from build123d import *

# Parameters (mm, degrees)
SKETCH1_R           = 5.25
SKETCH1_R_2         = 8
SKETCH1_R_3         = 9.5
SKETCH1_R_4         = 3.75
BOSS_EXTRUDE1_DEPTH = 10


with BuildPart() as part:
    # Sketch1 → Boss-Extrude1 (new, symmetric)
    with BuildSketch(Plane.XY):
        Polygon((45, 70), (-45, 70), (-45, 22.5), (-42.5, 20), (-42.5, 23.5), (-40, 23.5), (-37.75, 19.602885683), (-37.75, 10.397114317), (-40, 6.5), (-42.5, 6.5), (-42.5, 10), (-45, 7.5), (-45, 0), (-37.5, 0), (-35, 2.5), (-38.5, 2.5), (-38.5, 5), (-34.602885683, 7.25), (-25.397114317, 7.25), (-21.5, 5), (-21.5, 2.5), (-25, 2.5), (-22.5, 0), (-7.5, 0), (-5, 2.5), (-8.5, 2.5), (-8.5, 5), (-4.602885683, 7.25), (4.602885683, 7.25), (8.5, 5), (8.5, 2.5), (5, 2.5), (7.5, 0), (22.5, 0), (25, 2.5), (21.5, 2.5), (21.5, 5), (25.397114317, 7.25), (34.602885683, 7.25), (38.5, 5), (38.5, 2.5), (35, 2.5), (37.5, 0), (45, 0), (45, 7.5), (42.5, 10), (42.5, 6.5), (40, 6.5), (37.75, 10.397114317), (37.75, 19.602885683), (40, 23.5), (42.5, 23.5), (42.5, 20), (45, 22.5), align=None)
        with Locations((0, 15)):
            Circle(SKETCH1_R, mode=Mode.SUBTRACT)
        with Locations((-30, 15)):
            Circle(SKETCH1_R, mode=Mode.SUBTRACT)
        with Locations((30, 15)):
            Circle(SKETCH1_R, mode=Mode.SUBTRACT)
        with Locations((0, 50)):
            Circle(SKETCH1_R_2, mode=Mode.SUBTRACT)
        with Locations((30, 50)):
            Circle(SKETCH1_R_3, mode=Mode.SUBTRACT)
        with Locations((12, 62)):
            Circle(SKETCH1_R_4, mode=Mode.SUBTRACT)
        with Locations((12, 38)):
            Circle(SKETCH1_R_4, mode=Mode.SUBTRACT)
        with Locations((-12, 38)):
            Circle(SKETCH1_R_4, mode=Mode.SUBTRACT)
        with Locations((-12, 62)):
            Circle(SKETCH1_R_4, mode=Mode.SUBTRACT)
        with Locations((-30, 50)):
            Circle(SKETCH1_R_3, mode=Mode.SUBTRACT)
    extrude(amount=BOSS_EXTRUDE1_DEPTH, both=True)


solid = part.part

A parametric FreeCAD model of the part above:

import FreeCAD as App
import Part
import Sketcher
Q = App.Units.Quantity

doc = App.newDocument("Part")
body = doc.addObject("PartDesign::Body", "Body")

# Sketch on XY plane
sketch1 = body.newObject("Sketcher::SketchObject", "Sketch")
sketch1.AttachmentSupport = (doc.getObject("XY_Plane"), [""])
sketch1.MapMode = "FlatFace"
sketch1.addGeometry(Part.LineSegment(App.Vector(45, 70, 0), App.Vector(-45, 70, 0)), False)
sketch1.addGeometry(Part.LineSegment(App.Vector(-45, 70, 0), App.Vector(-45, 22.5, 0)), False)
sketch1.addGeometry(Part.LineSegment(App.Vector(-45, 22.5, 0), App.Vector(-42.5, 20, 0)), False)
sketch1.addGeometry(Part.LineSegment(App.Vector(-42.5, 20, 0), App.Vector(-42.5, 23.5, 0)), False)
sketch1.addGeometry(Part.LineSegment(App.Vector(-42.5, 23.5, 0), App.Vector(-40, 23.5, 0)), False)
sketch1.addGeometry(Part.LineSegment(App.Vector(-40, 23.5, 0), App.Vector(-37.8, 19.6, 0)), False)
sketch1.addGeometry(Part.LineSegment(App.Vector(-37.8, 19.6, 0), App.Vector(-37.8, 10.4, 0)), False)
sketch1.addGeometry(Part.LineSegment(App.Vector(-37.8, 10.4, 0), App.Vector(-40, 6.5, 0)), False)
sketch1.addGeometry(Part.LineSegment(App.Vector(-40, 6.5, 0), App.Vector(-42.5, 6.5, 0)), False)
sketch1.addGeometry(Part.LineSegment(App.Vector(-42.5, 6.5, 0), App.Vector(-42.5, 10, 0)), False)
sketch1.addGeometry(Part.LineSegment(App.Vector(-42.5, 10, 0), App.Vector(-45, 7.5, 0)), False)
sketch1.addGeometry(Part.LineSegment(App.Vector(-45, 7.5, 0), App.Vector(-45, 0, 0)), False)
sketch1.addGeometry(Part.LineSegment(App.Vector(-45, 0, 0), App.Vector(-37.5, 0, 0)), False)
sketch1.addGeometry(Part.LineSegment(App.Vector(-37.5, 0, 0), App.Vector(-35, 2.5, 0)), False)
sketch1.addGeometry(Part.LineSegment(App.Vector(-35, 2.5, 0), App.Vector(-38.5, 2.5, 0)), False)
sketch1.addGeometry(Part.LineSegment(App.Vector(-38.5, 2.5, 0), App.Vector(-38.5, 5, 0)), False)
sketch1.addGeometry(Part.LineSegment(App.Vector(-38.5, 5, 0), App.Vector(-34.6, 7.2, 0)), False)
sketch1.addGeometry(Part.LineSegment(App.Vector(-34.6, 7.2, 0), App.Vector(-25.4, 7.2, 0)), False)
sketch1.addGeometry(Part.LineSegment(App.Vector(-25.4, 7.2, 0), App.Vector(-21.5, 5, 0)), False)
sketch1.addGeometry(Part.LineSegment(App.Vector(-21.5, 5, 0), App.Vector(-21.5, 2.5, 0)), False)
sketch1.addGeometry(Part.LineSegment(App.Vector(-21.5, 2.5, 0), App.Vector(-25, 2.5, 0)), False)
sketch1.addGeometry(Part.LineSegment(App.Vector(-25, 2.5, 0), App.Vector(-22.5, 0, 0)), False)
sketch1.addGeometry(Part.LineSegment(App.Vector(-22.5, 0, 0), App.Vector(-7.5, 0, 0)), False)
sketch1.addGeometry(Part.LineSegment(App.Vector(-7.5, 0, 0), App.Vector(-5, 2.5, 0)), False)
sketch1.addGeometry(Part.LineSegment(App.Vector(-5, 2.5, 0), App.Vector(-8.5, 2.5, 0)), False)
sketch1.addGeometry(Part.LineSegment(App.Vector(-8.5, 2.5, 0), App.Vector(-8.5, 5, 0)), False)
sketch1.addGeometry(Part.LineSegment(App.Vector(-8.5, 5, 0), App.Vector(-4.6, 7.2, 0)), False)
sketch1.addGeometry(Part.LineSegment(App.Vector(-4.6, 7.2, 0), App.Vector(4.6, 7.2, 0)), False)
sketch1.addGeometry(Part.LineSegment(App.Vector(4.6, 7.2, 0), App.Vector(8.5, 5, 0)), False)
sketch1.addGeometry(Part.LineSegment(App.Vector(8.5, 5, 0), App.Vector(8.5, 2.5, 0)), False)
sketch1.addGeometry(Part.LineSegment(App.Vector(8.5, 2.5, 0), App.Vector(5, 2.5, 0)), False)
sketch1.addGeometry(Part.LineSegment(App.Vector(5, 2.5, 0), App.Vector(7.5, 0, 0)), False)
sketch1.addGeometry(Part.LineSegment(App.Vector(7.5, 0, 0), App.Vector(22.5, 0, 0)), False)
sketch1.addGeometry(Part.LineSegment(App.Vector(22.5, 0, 0), App.Vector(25, 2.5, 0)), False)
sketch1.addGeometry(Part.LineSegment(App.Vector(25, 2.5, 0), App.Vector(21.5, 2.5, 0)), False)
sketch1.addGeometry(Part.LineSegment(App.Vector(21.5, 2.5, 0), App.Vector(21.5, 5, 0)), False)
sketch1.addGeometry(Part.LineSegment(App.Vector(21.5, 5, 0), App.Vector(25.4, 7.2, 0)), False)
sketch1.addGeometry(Part.LineSegment(App.Vector(25.4, 7.2, 0), App.Vector(34.6, 7.2, 0)), False)
sketch1.addGeometry(Part.LineSegment(App.Vector(34.6, 7.2, 0), App.Vector(38.5, 5, 0)), False)
sketch1.addGeometry(Part.LineSegment(App.Vector(38.5, 5, 0), App.Vector(38.5, 2.5, 0)), False)
sketch1.addGeometry(Part.LineSegment(App.Vector(38.5, 2.5, 0), App.Vector(35, 2.5, 0)), False)
sketch1.addGeometry(Part.LineSegment(App.Vector(35, 2.5, 0), App.Vector(37.5, 0, 0)), False)
sketch1.addGeometry(Part.LineSegment(App.Vector(37.5, 0, 0), App.Vector(45, 0, 0)), False)
sketch1.addGeometry(Part.LineSegment(App.Vector(45, 0, 0), App.Vector(45, 7.5, 0)), False)
sketch1.addGeometry(Part.LineSegment(App.Vector(45, 7.5, 0), App.Vector(42.5, 10, 0)), False)
sketch1.addGeometry(Part.LineSegment(App.Vector(42.5, 10, 0), App.Vector(42.5, 6.5, 0)), False)
sketch1.addGeometry(Part.LineSegment(App.Vector(42.5, 6.5, 0), App.Vector(40, 6.5, 0)), False)
sketch1.addGeometry(Part.LineSegment(App.Vector(40, 6.5, 0), App.Vector(37.8, 10.4, 0)), False)
sketch1.addGeometry(Part.LineSegment(App.Vector(37.8, 10.4, 0), App.Vector(37.8, 19.6, 0)), False)
sketch1.addGeometry(Part.LineSegment(App.Vector(37.8, 19.6, 0), App.Vector(40, 23.5, 0)), False)
sketch1.addGeometry(Part.LineSegment(App.Vector(40, 23.5, 0), App.Vector(42.5, 23.5, 0)), False)
sketch1.addGeometry(Part.LineSegment(App.Vector(42.5, 23.5, 0), App.Vector(42.5, 20, 0)), False)
sketch1.addGeometry(Part.LineSegment(App.Vector(42.5, 20, 0), App.Vector(45, 22.5, 0)), False)
sketch1.addGeometry(Part.LineSegment(App.Vector(45, 22.5, 0), App.Vector(45, 70, 0)), False)
sketch1.addGeometry(Part.Circle(App.Vector(-30, 15, 0), App.Vector(0, 0, 1), 5.2), False)
sketch1.addGeometry(Part.Circle(App.Vector(0, 15, 0), App.Vector(0, 0, 1), 5.2), False)
sketch1.addGeometry(Part.Circle(App.Vector(30, 15, 0), App.Vector(0, 0, 1), 5.2), False)
sketch1.addGeometry(Part.Circle(App.Vector(-30, 50, 0), App.Vector(0, 0, 1), 9.5), False)
sketch1.addGeometry(Part.Circle(App.Vector(-12, 38, 0), App.Vector(0, 0, 1), 3.8), False)
sketch1.addGeometry(Part.Circle(App.Vector(-12, 62, 0), App.Vector(0, 0, 1), 3.8), False)
sketch1.addGeometry(Part.Circle(App.Vector(12, 38, 0), App.Vector(0, 0, 1), 3.8), False)
sketch1.addGeometry(Part.Circle(App.Vector(0, 50, 0), App.Vector(0, 0, 1), 8), False)
sketch1.addGeometry(Part.Circle(App.Vector(30, 50, 0), App.Vector(0, 0, 1), 9.5), False)
sketch1.addGeometry(Part.Circle(App.Vector(12, 62, 0), App.Vector(0, 0, 1), 3.8), False)
sketch1.addConstraint(Sketcher.Constraint("Coincident", 0, 2, 1, 1))
sketch1.addConstraint(Sketcher.Constraint("Coincident", 1, 2, 2, 1))
sketch1.addConstraint(Sketcher.Constraint("Coincident", 2, 2, 3, 1))
sketch1.addConstraint(Sketcher.Constraint("Coincident", 3, 2, 4, 1))
sketch1.addConstraint(Sketcher.Constraint("Coincident", 4, 2, 5, 1))
sketch1.addConstraint(Sketcher.Constraint("Coincident", 5, 2, 6, 1))
sketch1.addConstraint(Sketcher.Constraint("Coincident", 6, 2, 7, 1))
sketch1.addConstraint(Sketcher.Constraint("Coincident", 7, 2, 8, 1))
sketch1.addConstraint(Sketcher.Constraint("Coincident", 8, 2, 9, 1))
sketch1.addConstraint(Sketcher.Constraint("Coincident", 9, 2, 10, 1))
sketch1.addConstraint(Sketcher.Constraint("Coincident", 10, 2, 11, 1))
sketch1.addConstraint(Sketcher.Constraint("Coincident", 11, 2, 12, 1))
sketch1.addConstraint(Sketcher.Constraint("Coincident", 12, 2, 13, 1))
sketch1.addConstraint(Sketcher.Constraint("Coincident", 13, 2, 14, 1))
sketch1.addConstraint(Sketcher.Constraint("Coincident", 14, 2, 15, 1))
sketch1.addConstraint(Sketcher.Constraint("Coincident", 15, 2, 16, 1))
sketch1.addConstraint(Sketcher.Constraint("Coincident", 16, 2, 17, 1))
sketch1.addConstraint(Sketcher.Constraint("Coincident", 17, 2, 18, 1))
sketch1.addConstraint(Sketcher.Constraint("Coincident", 18, 2, 19, 1))
sketch1.addConstraint(Sketcher.Constraint("Coincident", 19, 2, 20, 1))
sketch1.addConstraint(Sketcher.Constraint("Coincident", 20, 2, 21, 1))
sketch1.addConstraint(Sketcher.Constraint("Coincident", 21, 2, 22, 1))
sketch1.addConstraint(Sketcher.Constraint("Coincident", 22, 2, 23, 1))
sketch1.addConstraint(Sketcher.Constraint("Coincident", 23, 2, 24, 1))
sketch1.addConstraint(Sketcher.Constraint("Coincident", 24, 2, 25, 1))
sketch1.addConstraint(Sketcher.Constraint("Coincident", 25, 2, 26, 1))
sketch1.addConstraint(Sketcher.Constraint("Coincident", 26, 2, 27, 1))
sketch1.addConstraint(Sketcher.Constraint("Coincident", 27, 2, 28, 1))
sketch1.addConstraint(Sketcher.Constraint("Coincident", 28, 2, 29, 1))
sketch1.addConstraint(Sketcher.Constraint("Coincident", 29, 2, 30, 1))
sketch1.addConstraint(Sketcher.Constraint("Coincident", 30, 2, 31, 1))
sketch1.addConstraint(Sketcher.Constraint("Coincident", 31, 2, 32, 1))
sketch1.addConstraint(Sketcher.Constraint("Coincident", 32, 2, 33, 1))
sketch1.addConstraint(Sketcher.Constraint("Coincident", 33, 2, 34, 1))
sketch1.addConstraint(Sketcher.Constraint("Coincident", 34, 2, 35, 1))
sketch1.addConstraint(Sketcher.Constraint("Coincident", 35, 2, 36, 1))
sketch1.addConstraint(Sketcher.Constraint("Coincident", 36, 2, 37, 1))
sketch1.addConstraint(Sketcher.Constraint("Coincident", 37, 2, 38, 1))
sketch1.addConstraint(Sketcher.Constraint("Coincident", 38, 2, 39, 1))
sketch1.addConstraint(Sketcher.Constraint("Coincident", 39, 2, 40, 1))
sketch1.addConstraint(Sketcher.Constraint("Coincident", 40, 2, 41, 1))
sketch1.addConstraint(Sketcher.Constraint("Coincident", 41, 2, 42, 1))
sketch1.addConstraint(Sketcher.Constraint("Coincident", 42, 2, 43, 1))
sketch1.addConstraint(Sketcher.Constraint("Coincident", 43, 2, 44, 1))
sketch1.addConstraint(Sketcher.Constraint("Coincident", 44, 2, 45, 1))
sketch1.addConstraint(Sketcher.Constraint("Coincident", 45, 2, 46, 1))
sketch1.addConstraint(Sketcher.Constraint("Coincident", 46, 2, 47, 1))
sketch1.addConstraint(Sketcher.Constraint("Coincident", 47, 2, 48, 1))
sketch1.addConstraint(Sketcher.Constraint("Coincident", 48, 2, 49, 1))
sketch1.addConstraint(Sketcher.Constraint("Coincident", 49, 2, 50, 1))
sketch1.addConstraint(Sketcher.Constraint("Coincident", 50, 2, 51, 1))
sketch1.addConstraint(Sketcher.Constraint("Coincident", 51, 2, 52, 1))
sketch1.addConstraint(Sketcher.Constraint("Coincident", 52, 2, 53, 1))
sketch1.addConstraint(Sketcher.Constraint("Coincident", 53, 2, 0, 1))
sketch1.addConstraint(Sketcher.Constraint("Horizontal", 0))
sketch1.addConstraint(Sketcher.Constraint("Vertical", 1))
sketch1.addConstraint(Sketcher.Constraint("Vertical", 3))
sketch1.addConstraint(Sketcher.Constraint("Horizontal", 4))
sketch1.addConstraint(Sketcher.Constraint("Vertical", 6))
sketch1.addConstraint(Sketcher.Constraint("Horizontal", 8))
sketch1.addConstraint(Sketcher.Constraint("Vertical", 9))
sketch1.addConstraint(Sketcher.Constraint("Vertical", 11))
sketch1.addConstraint(Sketcher.Constraint("Horizontal", 12))
sketch1.addConstraint(Sketcher.Constraint("Horizontal", 14))
sketch1.addConstraint(Sketcher.Constraint("Vertical", 15))
sketch1.addConstraint(Sketcher.Constraint("Horizontal", 17))
sketch1.addConstraint(Sketcher.Constraint("Vertical", 19))
sketch1.addConstraint(Sketcher.Constraint("Horizontal", 20))
sketch1.addConstraint(Sketcher.Constraint("Horizontal", 22))
sketch1.addConstraint(Sketcher.Constraint("Horizontal", 24))
sketch1.addConstraint(Sketcher.Constraint("Vertical", 25))
sketch1.addConstraint(Sketcher.Constraint("Horizontal", 27))
sketch1.addConstraint(Sketcher.Constraint("Vertical", 29))
sketch1.addConstraint(Sketcher.Constraint("Horizontal", 30))
sketch1.addConstraint(Sketcher.Constraint("Horizontal", 32))
sketch1.addConstraint(Sketcher.Constraint("Horizontal", 34))
sketch1.addConstraint(Sketcher.Constraint("Vertical", 35))
sketch1.addConstraint(Sketcher.Constraint("Horizontal", 37))
sketch1.addConstraint(Sketcher.Constraint("Vertical", 39))
sketch1.addConstraint(Sketcher.Constraint("Horizontal", 40))
sketch1.addConstraint(Sketcher.Constraint("Horizontal", 42))
sketch1.addConstraint(Sketcher.Constraint("Vertical", 43))
sketch1.addConstraint(Sketcher.Constraint("Vertical", 45))
sketch1.addConstraint(Sketcher.Constraint("Horizontal", 46))
sketch1.addConstraint(Sketcher.Constraint("Vertical", 48))
sketch1.addConstraint(Sketcher.Constraint("Horizontal", 50))
sketch1.addConstraint(Sketcher.Constraint("Vertical", 51))
sketch1.addConstraint(Sketcher.Constraint("Vertical", 53))
sketch1.addConstraint(Sketcher.Constraint("Equal", 54, 55))
sketch1.addConstraint(Sketcher.Constraint("Equal", 55, 56))
sketch1.addConstraint(Sketcher.Constraint("Equal", 58, 59))
sketch1.addConstraint(Sketcher.Constraint("Equal", 59, 60))
sketch1.addConstraint(Sketcher.Constraint("Equal", 57, 62))
sketch1.addConstraint(Sketcher.Constraint("Equal", 60, 63))
sketch1.addConstraint(Sketcher.Constraint("Symmetric", 22, 2, 31, 2, -1, 1))
sketch1.addConstraint(Sketcher.Constraint("Symmetric", 12, 2, 41, 2, -1, 1))
sketch1.addConstraint(Sketcher.Constraint("Symmetric", 54, 3, 56, 3, -2))
sketch1.addConstraint(Sketcher.Constraint("Symmetric", 58, 3, 60, 3, -2))
sketch1.addConstraint(Sketcher.Constraint("Symmetric", 57, 3, 62, 3, -2))
sketch1.addConstraint(Sketcher.Constraint("Symmetric", 59, 3, 63, 3, -2))
sketch1.addConstraint(Sketcher.Constraint("Symmetric", 25, 2, 28, 2, -2))
sketch1.addConstraint(Sketcher.Constraint("Symmetric", 23, 2, 30, 2, -2))
sketch1.addConstraint(Sketcher.Constraint("Symmetric", 21, 2, 32, 2, -2))
sketch1.addConstraint(Sketcher.Constraint("Symmetric", 20, 2, 33, 2, -2))
sketch1.addConstraint(Sketcher.Constraint("Symmetric", 18, 2, 35, 2, -2))
sketch1.addConstraint(Sketcher.Constraint("Symmetric", 17, 2, 36, 2, -2))
sketch1.addConstraint(Sketcher.Constraint("Symmetric", 15, 2, 38, 2, -2))
sketch1.addConstraint(Sketcher.Constraint("Symmetric", 13, 2, 40, 2, -2))
sketch1.addConstraint(Sketcher.Constraint("Symmetric", 11, 2, 42, 2, -2))
sketch1.addConstraint(Sketcher.Constraint("Symmetric", 9, 2, 44, 2, -2))
sketch1.addConstraint(Sketcher.Constraint("Symmetric", 7, 2, 46, 2, -2))
sketch1.addConstraint(Sketcher.Constraint("Symmetric", 6, 2, 47, 2, -2))
sketch1.addConstraint(Sketcher.Constraint("Symmetric", 4, 2, 49, 2, -2))
sketch1.addConstraint(Sketcher.Constraint("Symmetric", 2, 2, 51, 2, -2))
sketch1.addConstraint(Sketcher.Constraint("Symmetric", 1, 2, 52, 2, -2))
sketch1.addConstraint(Sketcher.Constraint("PointOnObject", 55, 3, -2))
sketch1.addConstraint(Sketcher.Constraint("PointOnObject", 61, 3, -2))
sketch1.addConstraint(Sketcher.Constraint("Perpendicular", 2, 10))
sketch1.addConstraint(Sketcher.Constraint("Parallel", 10, 13))
sketch1.addConstraint(Sketcher.Constraint("Perpendicular", 5, 16))
sketch1.addConstraint(Sketcher.Constraint("Perpendicular", 7, 18))
sketch1.addConstraint(Sketcher.Constraint("Perpendicular", 13, 21))
sketch1.addConstraint(Sketcher.Constraint("Perpendicular", 21, 23))
sketch1.addConstraint(Sketcher.Constraint("Parallel", 16, 26))
sketch1.addConstraint(Sketcher.Constraint("Parallel", 18, 28))
sketch1.addConstraint(Sketcher.Constraint("Perpendicular", 23, 31))
sketch1.addConstraint(Sketcher.Constraint("Parallel", 26, 36))
sketch1.addConstraint(Sketcher.Constraint("Parallel", 28, 38))
sketch1.addConstraint(Sketcher.Constraint("Parallel", 41, 44))
sketch1.addConstraint(Sketcher.Constraint("Perpendicular", 38, 49))
sketch1.addConstraint(Sketcher.Constraint("Horizontal", 54, 3, 55, 3))
sketch1.addConstraint(Sketcher.Constraint("Horizontal", 57, 3, 61, 3))
sketch1.addConstraint(Sketcher.Constraint("Horizontal", 15, 2, 18, 2))
sketch1.addConstraint(Sketcher.Constraint("Horizontal", 14, 2, 19, 2))
sketch1.addConstraint(Sketcher.Constraint("Horizontal", 20, 2, 23, 2))
sketch1.addConstraint(Sketcher.Constraint("Horizontal", 18, 2, 25, 2))
sketch1.addConstraint(Sketcher.Constraint("Horizontal", 17, 2, 26, 2))
sketch1.addConstraint(Sketcher.Constraint("Vertical", 54, 3, 57, 3))
sketch1.addConstraint(Sketcher.Constraint("Vertical", 58, 3, 59, 3))
sketch1.addConstraint(Sketcher.Constraint("Vertical", 4, 2, 7, 2))
sketch1.addConstraint(Sketcher.Constraint("Vertical", 3, 2, 8, 2))
sketch1.addConstraint(Sketcher.Constraint("Vertical", 1, 2, 10, 2))
sketch1.addConstraint(Sketcher.Constraint("Equal", 14, 20))
sketch1.addConstraint(Sketcher.Constraint("Equal", 20, 24))
sketch1.addConstraint(Sketcher.Constraint("Equal", 17, 27))
sketch1.addConstraint(Sketcher.Constraint("Equal", 40, 3))
sketch1.addConstraint(Sketcher.Constraint("Equal", 37, 6))
sketch1.addConstraint(Sketcher.Constraint("Equal", 3, 9))
sketch1.addConstraint(Sketcher.Constraint("Equal", 42, 11))
sketch1.addConstraint(Sketcher.Constraint("Equal", 50, 15))
sketch1.addConstraint(Sketcher.Constraint("Equal", 10, 13))
sketch1.addConstraint(Sketcher.Constraint("Equal", 7, 16))
sketch1.addConstraint(Sketcher.Constraint("Diameter", 57, Q("19 mm")))
sketch1.addConstraint(Sketcher.Constraint("Diameter", 61, Q("16 mm")))
sketch1.addConstraint(Sketcher.Constraint("Diameter", 54, Q("10.5 mm")))
sketch1.addConstraint(Sketcher.Constraint("Diameter", 58, Q("7.5 mm")))
sketch1.addConstraint(Sketcher.Constraint("DistanceX", 0, 2, 0, 1, Q("90 mm")))
sketch1.addConstraint(Sketcher.Constraint("DistanceX", 22, 1, 22, 2, Q("15 mm")))
sketch1.addConstraint(Sketcher.Constraint("Angle", 5, Q("-60 deg")))
sketch1.addConstraint(Sketcher.Constraint("DistanceX", 4, 1, 4, 2, Q("2.5 mm")))
sketch1.addConstraint(Sketcher.Constraint("DistanceX", 12, 1, 12, 2, Q("7.5 mm")))
sketch1.addConstraint(Sketcher.Constraint("DistanceX", 14, 2, 14, 1, Q("3.5 mm")))
sketch1.addConstraint(Sketcher.Constraint("DistanceY", 1, 2, 1, 1, Q("47.5 mm")))
sketch1.addConstraint(Sketcher.Constraint("DistanceX", 54, 3, -1, 1, Q("30 mm")))
sketch1.addConstraint(Sketcher.Constraint("DistanceY", -1, 1, 54, 3, Q("15 mm")))
sketch1.addConstraint(Sketcher.Constraint("DistanceY", -1, 1, 57, 3, Q("50 mm")))
sketch1.addConstraint(Sketcher.Constraint("DistanceX", 58, 3, -1, 1, Q("12 mm")))
sketch1.addConstraint(Sketcher.Constraint("DistanceY", -1, 1, 58, 3, Q("38 mm")))
sketch1.addConstraint(Sketcher.Constraint("DistanceY", -1, 1, 59, 3, Q("62 mm")))
sketch1.addConstraint(Sketcher.Constraint("DistanceY", -1, 1, 2, 2, Q("20 mm")))
sketch1.addConstraint(Sketcher.Constraint("Distance", 5, Q("4.5 mm")))
pad1 = body.newObject("PartDesign::Pad", "Pad")
pad1.Profile = sketch1
pad1.Length = 20
pad1.Midplane = True

doc.recompute()
